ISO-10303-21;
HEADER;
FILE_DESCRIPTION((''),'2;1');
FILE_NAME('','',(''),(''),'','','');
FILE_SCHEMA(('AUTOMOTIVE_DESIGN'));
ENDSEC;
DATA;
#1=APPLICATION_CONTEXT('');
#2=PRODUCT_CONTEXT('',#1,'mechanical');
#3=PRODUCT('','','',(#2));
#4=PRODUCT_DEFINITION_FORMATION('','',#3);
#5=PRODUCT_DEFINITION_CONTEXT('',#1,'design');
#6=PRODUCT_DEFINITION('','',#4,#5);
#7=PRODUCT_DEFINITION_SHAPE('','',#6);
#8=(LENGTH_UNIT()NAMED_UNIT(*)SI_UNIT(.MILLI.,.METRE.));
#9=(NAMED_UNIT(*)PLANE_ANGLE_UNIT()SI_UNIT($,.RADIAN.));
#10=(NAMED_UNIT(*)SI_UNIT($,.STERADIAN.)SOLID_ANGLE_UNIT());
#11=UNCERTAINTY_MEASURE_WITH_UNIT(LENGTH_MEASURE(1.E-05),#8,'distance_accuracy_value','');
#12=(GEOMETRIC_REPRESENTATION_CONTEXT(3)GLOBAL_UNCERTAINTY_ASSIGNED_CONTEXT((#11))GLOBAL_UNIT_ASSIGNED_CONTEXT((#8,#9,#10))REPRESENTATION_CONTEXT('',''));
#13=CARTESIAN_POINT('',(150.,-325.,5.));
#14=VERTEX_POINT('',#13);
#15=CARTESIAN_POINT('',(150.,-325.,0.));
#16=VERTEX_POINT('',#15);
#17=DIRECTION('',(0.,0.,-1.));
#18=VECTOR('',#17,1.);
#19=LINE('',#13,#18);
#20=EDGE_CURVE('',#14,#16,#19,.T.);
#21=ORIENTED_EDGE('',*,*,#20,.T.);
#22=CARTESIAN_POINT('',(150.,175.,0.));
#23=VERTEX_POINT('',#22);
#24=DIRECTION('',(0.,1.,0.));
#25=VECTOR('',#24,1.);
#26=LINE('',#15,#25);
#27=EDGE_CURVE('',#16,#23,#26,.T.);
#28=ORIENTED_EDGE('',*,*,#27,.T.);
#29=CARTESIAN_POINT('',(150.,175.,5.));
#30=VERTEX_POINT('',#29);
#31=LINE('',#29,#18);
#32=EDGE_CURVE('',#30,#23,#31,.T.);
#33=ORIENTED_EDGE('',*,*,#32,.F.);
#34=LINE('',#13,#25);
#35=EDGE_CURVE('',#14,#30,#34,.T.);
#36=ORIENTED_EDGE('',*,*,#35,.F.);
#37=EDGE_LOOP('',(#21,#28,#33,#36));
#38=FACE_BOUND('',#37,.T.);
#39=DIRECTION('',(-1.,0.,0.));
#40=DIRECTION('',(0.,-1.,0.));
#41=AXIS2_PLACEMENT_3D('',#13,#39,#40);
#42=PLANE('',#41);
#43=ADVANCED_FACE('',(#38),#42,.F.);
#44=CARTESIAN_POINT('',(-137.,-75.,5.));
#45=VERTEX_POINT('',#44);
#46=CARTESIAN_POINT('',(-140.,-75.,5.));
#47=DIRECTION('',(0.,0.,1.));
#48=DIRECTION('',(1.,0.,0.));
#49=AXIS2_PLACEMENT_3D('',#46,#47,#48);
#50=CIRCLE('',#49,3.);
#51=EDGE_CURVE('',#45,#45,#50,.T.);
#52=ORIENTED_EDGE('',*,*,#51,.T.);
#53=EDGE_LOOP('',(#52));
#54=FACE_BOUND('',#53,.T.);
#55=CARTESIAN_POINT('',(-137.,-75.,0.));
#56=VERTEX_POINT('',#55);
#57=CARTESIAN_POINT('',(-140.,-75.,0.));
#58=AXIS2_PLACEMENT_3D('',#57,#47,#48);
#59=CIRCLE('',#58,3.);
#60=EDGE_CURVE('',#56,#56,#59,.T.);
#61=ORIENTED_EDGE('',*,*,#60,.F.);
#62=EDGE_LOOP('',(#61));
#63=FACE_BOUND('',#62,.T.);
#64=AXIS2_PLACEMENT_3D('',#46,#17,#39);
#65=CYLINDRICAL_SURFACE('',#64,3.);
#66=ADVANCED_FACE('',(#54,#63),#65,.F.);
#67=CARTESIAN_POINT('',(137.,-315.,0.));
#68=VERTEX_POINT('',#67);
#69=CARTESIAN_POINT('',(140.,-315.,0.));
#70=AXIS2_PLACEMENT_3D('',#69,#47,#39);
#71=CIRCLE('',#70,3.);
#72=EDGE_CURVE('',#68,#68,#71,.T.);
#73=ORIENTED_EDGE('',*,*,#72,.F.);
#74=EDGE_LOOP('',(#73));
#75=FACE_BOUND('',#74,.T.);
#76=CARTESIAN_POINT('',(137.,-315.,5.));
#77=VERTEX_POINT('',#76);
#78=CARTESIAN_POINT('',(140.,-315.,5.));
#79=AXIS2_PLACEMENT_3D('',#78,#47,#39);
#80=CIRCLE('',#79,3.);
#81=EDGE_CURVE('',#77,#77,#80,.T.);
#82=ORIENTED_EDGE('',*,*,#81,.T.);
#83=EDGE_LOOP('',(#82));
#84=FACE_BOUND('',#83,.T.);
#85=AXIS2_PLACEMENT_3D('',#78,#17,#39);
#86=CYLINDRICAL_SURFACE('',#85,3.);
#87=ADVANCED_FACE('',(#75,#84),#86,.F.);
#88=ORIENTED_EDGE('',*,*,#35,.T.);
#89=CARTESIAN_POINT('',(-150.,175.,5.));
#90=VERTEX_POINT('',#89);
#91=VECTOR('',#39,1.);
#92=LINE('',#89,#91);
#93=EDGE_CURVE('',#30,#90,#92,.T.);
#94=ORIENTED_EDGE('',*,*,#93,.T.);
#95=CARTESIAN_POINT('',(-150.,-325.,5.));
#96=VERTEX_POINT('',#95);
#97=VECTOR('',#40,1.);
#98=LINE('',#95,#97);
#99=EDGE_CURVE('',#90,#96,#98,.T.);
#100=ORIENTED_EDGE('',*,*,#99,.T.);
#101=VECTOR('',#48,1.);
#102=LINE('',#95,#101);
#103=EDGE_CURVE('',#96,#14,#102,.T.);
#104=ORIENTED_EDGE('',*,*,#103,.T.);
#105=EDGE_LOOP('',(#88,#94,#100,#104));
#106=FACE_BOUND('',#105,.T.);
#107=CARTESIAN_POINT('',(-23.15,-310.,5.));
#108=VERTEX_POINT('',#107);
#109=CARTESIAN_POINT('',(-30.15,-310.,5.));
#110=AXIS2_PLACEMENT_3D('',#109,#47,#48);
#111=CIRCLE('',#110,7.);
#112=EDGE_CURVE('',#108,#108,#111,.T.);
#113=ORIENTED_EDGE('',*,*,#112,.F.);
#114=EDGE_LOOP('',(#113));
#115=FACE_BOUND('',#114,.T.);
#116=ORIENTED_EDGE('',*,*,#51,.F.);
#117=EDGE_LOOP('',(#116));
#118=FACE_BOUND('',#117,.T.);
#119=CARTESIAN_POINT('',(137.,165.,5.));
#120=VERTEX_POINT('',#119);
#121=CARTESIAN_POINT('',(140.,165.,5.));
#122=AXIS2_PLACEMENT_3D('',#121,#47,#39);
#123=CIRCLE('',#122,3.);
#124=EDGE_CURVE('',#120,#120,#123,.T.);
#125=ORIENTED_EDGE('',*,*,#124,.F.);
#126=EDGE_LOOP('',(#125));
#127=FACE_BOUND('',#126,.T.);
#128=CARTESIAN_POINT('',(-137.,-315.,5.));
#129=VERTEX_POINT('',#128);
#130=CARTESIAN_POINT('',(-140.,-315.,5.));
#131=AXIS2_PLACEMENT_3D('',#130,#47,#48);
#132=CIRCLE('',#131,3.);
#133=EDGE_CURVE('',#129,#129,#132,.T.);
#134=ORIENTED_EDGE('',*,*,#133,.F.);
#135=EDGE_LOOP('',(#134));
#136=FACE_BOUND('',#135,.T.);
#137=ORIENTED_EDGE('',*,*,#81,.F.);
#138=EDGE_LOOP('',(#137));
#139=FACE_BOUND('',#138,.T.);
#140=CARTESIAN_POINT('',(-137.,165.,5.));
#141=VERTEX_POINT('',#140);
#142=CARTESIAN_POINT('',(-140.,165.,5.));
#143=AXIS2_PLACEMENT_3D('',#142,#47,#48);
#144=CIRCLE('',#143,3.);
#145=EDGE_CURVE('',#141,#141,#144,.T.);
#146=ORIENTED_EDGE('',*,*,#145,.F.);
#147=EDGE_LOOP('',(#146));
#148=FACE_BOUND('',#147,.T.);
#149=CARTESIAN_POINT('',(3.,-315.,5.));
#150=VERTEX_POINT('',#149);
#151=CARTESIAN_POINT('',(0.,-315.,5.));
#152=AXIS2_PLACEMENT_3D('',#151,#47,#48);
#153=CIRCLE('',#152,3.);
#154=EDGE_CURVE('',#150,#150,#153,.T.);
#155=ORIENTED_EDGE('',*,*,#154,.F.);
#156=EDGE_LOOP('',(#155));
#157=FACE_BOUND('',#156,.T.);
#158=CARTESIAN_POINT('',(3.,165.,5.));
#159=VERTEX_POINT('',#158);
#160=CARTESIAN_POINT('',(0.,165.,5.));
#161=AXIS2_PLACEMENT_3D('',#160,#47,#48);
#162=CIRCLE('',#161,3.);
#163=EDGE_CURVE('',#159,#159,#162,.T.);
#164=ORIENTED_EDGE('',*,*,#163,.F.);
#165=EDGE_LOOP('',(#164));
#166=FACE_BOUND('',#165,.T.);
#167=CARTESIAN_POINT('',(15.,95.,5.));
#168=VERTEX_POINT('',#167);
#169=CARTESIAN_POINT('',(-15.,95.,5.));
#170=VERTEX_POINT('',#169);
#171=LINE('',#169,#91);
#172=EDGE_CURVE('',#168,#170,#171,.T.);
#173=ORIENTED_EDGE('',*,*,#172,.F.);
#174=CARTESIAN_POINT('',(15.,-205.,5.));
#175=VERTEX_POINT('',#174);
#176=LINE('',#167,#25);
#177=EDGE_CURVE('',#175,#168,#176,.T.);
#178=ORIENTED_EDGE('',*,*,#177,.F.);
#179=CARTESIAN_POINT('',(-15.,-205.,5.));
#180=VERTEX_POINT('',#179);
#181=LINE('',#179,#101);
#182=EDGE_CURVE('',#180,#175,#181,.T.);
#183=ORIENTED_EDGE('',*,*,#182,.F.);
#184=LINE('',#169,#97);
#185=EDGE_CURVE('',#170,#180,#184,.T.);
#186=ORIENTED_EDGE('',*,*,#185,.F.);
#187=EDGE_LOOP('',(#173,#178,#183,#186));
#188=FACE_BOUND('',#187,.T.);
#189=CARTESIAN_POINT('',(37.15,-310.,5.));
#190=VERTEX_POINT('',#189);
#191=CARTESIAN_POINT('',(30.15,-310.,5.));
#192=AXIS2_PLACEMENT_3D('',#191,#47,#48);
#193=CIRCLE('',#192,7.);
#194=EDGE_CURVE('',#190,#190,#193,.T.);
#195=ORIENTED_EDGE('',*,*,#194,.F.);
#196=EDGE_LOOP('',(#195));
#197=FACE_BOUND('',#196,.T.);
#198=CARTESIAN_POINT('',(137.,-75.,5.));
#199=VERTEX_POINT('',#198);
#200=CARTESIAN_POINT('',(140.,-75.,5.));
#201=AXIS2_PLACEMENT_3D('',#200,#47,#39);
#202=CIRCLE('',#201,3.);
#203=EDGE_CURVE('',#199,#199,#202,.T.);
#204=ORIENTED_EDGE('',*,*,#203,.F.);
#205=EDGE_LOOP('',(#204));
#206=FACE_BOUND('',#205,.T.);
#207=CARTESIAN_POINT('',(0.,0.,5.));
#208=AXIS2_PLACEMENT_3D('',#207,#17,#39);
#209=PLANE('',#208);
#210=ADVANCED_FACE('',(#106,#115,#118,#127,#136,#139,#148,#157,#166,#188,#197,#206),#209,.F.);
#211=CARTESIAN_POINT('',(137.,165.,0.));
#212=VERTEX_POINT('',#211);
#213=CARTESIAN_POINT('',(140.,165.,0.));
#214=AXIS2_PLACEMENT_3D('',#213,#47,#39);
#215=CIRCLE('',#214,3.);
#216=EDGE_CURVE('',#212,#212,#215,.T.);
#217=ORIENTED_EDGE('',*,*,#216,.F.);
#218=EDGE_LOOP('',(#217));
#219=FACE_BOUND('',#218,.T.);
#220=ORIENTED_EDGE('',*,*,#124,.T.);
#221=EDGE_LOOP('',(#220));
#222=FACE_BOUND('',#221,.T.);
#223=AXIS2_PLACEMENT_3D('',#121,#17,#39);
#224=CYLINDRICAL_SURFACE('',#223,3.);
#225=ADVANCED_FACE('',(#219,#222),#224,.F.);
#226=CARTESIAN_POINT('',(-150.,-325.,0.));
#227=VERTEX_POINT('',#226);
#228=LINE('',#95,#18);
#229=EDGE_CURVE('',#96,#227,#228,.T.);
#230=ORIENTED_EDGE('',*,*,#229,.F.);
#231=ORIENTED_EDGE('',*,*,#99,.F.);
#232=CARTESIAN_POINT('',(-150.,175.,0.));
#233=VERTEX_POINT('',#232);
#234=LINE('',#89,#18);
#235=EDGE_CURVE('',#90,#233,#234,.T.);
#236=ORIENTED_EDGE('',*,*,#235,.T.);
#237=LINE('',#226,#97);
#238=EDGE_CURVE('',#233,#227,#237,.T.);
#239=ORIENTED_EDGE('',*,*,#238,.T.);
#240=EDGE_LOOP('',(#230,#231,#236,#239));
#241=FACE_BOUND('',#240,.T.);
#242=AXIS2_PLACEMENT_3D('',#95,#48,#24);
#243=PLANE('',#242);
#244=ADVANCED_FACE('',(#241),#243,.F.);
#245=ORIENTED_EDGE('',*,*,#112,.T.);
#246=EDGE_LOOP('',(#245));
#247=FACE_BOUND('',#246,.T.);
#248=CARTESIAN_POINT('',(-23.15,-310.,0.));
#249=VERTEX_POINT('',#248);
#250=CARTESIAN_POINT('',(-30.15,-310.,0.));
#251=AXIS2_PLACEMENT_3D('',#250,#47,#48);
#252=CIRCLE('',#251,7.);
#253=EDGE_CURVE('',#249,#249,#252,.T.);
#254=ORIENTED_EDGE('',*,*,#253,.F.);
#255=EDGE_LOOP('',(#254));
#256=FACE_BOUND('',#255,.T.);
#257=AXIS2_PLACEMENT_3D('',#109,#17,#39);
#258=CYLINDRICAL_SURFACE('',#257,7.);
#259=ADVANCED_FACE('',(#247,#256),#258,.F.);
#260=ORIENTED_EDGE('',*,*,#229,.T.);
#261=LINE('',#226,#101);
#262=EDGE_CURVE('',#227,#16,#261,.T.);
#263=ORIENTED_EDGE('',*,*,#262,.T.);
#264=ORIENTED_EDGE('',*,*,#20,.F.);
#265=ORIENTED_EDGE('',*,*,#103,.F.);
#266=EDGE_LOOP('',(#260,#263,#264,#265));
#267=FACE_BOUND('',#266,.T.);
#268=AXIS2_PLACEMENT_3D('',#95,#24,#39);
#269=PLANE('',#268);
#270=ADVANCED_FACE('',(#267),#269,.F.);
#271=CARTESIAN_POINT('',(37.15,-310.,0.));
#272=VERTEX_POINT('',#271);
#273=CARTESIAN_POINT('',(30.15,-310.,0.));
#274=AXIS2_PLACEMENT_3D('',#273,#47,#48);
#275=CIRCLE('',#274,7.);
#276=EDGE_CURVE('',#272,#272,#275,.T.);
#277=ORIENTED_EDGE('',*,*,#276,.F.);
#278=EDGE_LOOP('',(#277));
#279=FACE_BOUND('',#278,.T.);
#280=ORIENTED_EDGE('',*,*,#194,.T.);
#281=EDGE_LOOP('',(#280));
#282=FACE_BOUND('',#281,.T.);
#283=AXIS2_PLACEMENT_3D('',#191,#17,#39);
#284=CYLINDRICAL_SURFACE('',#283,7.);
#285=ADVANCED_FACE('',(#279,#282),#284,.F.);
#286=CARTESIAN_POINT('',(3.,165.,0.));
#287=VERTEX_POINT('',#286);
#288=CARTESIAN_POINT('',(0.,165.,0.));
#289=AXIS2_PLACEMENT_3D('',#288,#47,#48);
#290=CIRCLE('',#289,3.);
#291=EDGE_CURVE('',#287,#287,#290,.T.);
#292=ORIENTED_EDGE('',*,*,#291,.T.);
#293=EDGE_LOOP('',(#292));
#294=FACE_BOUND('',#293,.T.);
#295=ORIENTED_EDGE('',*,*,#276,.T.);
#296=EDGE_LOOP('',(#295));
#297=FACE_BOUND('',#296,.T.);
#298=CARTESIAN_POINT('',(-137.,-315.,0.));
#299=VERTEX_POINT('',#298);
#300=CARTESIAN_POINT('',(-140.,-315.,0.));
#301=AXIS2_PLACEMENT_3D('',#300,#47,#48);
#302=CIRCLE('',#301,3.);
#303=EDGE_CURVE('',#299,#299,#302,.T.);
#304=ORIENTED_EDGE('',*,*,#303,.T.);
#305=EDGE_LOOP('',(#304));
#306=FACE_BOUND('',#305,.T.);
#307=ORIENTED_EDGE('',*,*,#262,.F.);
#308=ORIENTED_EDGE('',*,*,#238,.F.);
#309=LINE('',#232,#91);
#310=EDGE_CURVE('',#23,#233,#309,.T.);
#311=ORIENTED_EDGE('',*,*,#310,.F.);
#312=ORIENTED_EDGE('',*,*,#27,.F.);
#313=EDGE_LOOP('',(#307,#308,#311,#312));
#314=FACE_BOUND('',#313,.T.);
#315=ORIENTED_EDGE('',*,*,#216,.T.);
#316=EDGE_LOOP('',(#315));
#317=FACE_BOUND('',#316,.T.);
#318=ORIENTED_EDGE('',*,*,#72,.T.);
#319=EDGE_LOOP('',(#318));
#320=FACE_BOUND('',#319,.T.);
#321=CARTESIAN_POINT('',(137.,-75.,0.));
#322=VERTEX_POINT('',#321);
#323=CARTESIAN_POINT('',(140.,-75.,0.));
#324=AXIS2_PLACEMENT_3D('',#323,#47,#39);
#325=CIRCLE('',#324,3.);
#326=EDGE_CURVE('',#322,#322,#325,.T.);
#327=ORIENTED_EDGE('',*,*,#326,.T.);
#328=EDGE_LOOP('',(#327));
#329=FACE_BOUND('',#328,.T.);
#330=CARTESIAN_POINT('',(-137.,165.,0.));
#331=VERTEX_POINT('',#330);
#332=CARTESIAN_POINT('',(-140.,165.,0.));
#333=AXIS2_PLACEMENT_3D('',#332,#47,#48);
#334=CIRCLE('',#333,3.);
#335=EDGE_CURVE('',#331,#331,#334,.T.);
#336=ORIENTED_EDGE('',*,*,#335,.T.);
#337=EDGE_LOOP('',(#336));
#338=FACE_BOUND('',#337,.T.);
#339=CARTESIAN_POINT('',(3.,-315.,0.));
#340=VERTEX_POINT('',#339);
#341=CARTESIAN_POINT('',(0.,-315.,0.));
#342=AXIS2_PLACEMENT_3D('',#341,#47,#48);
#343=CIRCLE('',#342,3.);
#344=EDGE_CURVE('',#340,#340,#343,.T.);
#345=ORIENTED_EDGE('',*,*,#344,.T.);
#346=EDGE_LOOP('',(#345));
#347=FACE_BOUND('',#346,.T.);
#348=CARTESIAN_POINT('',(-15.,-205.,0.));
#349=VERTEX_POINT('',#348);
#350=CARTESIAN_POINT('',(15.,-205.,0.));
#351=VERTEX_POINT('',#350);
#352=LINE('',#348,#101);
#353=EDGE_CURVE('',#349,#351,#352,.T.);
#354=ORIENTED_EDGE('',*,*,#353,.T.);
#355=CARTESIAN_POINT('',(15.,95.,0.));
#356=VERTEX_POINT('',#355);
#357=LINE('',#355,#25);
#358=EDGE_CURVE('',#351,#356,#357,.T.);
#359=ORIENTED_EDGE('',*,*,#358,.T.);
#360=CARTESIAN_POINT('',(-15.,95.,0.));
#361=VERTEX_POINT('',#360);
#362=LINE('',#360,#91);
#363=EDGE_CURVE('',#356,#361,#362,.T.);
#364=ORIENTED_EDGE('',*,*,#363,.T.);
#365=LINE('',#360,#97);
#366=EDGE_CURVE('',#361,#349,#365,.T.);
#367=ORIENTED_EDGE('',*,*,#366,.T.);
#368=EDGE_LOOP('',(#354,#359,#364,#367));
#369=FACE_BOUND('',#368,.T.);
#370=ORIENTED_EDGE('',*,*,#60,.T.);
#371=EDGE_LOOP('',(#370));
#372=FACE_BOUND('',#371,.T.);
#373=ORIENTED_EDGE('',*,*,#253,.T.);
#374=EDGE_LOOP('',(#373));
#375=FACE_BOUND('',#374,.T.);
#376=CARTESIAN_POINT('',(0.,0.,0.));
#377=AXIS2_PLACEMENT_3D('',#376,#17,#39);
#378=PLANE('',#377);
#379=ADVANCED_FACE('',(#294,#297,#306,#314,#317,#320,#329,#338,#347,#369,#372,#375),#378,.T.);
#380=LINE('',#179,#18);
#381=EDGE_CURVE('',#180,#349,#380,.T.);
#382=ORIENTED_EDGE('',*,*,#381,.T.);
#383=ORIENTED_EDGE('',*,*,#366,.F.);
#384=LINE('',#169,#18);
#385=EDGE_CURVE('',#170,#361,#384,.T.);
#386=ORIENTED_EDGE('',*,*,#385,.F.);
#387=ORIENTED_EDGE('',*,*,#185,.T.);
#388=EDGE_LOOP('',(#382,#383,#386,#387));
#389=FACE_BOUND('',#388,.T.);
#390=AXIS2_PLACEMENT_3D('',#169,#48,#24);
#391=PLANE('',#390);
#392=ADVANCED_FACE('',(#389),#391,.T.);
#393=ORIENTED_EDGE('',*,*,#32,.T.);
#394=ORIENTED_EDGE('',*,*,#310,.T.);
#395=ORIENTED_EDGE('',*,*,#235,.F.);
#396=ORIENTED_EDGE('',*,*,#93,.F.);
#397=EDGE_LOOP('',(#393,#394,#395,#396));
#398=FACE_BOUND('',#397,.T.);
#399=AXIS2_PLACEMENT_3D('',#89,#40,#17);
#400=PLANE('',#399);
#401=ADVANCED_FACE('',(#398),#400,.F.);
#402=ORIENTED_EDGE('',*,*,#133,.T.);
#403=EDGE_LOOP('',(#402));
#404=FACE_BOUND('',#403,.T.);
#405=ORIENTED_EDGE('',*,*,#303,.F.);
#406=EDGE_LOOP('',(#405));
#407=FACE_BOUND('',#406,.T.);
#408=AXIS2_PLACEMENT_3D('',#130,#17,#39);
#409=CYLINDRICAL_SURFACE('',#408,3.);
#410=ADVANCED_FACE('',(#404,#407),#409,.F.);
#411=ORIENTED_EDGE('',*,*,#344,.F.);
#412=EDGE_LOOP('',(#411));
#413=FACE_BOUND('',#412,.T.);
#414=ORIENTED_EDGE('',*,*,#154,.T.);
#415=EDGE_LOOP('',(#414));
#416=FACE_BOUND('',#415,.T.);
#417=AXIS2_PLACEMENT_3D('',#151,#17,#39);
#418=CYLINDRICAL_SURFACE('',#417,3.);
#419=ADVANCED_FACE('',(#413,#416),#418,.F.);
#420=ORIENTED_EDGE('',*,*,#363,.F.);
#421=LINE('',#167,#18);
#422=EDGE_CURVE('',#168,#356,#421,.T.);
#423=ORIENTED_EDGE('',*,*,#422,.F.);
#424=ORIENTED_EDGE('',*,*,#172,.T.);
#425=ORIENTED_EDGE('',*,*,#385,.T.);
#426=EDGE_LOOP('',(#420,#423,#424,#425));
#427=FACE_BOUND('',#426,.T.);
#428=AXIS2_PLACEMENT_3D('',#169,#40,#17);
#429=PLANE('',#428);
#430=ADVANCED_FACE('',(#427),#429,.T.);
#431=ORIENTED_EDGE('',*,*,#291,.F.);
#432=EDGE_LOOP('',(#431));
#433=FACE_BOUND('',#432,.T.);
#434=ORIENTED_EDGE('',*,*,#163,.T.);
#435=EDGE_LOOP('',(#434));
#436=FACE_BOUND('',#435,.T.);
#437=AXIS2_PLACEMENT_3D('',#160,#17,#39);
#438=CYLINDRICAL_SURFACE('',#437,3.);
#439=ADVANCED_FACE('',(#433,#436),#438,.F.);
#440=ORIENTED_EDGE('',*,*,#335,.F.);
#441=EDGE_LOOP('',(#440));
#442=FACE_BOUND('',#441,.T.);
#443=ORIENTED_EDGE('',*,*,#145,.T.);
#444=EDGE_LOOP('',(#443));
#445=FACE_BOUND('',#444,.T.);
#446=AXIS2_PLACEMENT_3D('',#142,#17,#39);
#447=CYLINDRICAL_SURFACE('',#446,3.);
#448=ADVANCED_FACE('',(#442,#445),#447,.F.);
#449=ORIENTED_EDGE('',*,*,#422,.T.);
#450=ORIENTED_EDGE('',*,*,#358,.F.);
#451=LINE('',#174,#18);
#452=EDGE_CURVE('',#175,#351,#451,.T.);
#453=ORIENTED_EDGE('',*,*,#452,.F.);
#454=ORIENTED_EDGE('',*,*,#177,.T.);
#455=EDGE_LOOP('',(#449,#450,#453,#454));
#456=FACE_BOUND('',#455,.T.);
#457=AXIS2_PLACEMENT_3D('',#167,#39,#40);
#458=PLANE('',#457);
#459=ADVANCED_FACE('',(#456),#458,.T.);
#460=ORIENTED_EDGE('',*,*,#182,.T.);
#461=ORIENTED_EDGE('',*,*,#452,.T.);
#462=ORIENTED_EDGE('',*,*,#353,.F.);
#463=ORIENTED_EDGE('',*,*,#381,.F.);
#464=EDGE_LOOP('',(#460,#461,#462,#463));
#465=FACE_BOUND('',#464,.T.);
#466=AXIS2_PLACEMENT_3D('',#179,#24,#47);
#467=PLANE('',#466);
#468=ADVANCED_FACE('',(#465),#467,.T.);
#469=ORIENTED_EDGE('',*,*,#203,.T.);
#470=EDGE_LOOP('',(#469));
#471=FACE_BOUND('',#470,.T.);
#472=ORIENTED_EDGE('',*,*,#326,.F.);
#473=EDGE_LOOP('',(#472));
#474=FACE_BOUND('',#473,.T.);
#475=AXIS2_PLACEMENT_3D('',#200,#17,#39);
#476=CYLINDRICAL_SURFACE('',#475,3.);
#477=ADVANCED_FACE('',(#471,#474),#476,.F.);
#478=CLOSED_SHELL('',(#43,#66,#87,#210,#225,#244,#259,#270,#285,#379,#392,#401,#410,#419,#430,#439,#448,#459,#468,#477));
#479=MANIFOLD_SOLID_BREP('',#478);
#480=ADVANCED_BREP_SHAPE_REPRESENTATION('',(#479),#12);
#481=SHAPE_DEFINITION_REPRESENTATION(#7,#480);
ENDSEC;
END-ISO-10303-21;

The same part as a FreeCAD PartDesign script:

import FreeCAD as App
import Part
import Sketcher

V = App.Vector


def add_polygon(sketch, points):
    """Adds a closed chain of lines whose ends are joined by coincident constraints."""
    first, n = sketch.GeometryCount, len(points)
    for a, b in zip(points, points[1:] + points[:1]):
        sketch.addGeometry(Part.LineSegment(App.Vector(*a, 0), App.Vector(*b, 0)), False)
    for i in range(n):
        sketch.addConstraint(Sketcher.Constraint("Coincident", first + i, 2, first + (i + 1) % n, 1))

doc = App.newDocument("Part")
body = doc.addObject("PartDesign::Body", "Body")

# Sketch on XY plane
sketch1 = doc.addObject("Sketcher::SketchObject", "Sketch")
body.addObject(sketch1)
sketch1.AttachmentSupport = (doc.XY_Plane, [""])
sketch1.MapMode = "FlatFace"
add_polygon(sketch1, [(-150, 175), (-150, -325), (150, -325), (150, 175)])  # lines 0-3
sketch1.addGeometry(Part.Circle(V(-140, -315, 0), V(0, 0, 1), 3), False)  # 4
sketch1.addGeometry(Part.Circle(V(-30.1, -310, 0), V(0, 0, 1), 7), False)  # 5
sketch1.addGeometry(Part.Circle(V(0, -315, 0), V(0, 0, 1), 3), False)  # 6
sketch1.addGeometry(Part.Circle(V(30.1, -310, 0), V(0, 0, 1), 7), False)  # 7
sketch1.addGeometry(Part.Circle(V(140, -315, 0), V(0, 0, 1), 3), False)  # 8
sketch1.addGeometry(Part.Circle(V(-140, -75, 0), V(0, 0, 1), 3), False)  # 9
sketch1.addGeometry(Part.Circle(V(-140, 165, 0), V(0, 0, 1), 3), False)  # 10
add_polygon(sketch1, [(15, -205), (-15, -205), (-15, 95), (15, 95)])  # lines 11-14
sketch1.addGeometry(Part.Circle(V(140, -75, 0), V(0, 0, 1), 3), False)  # 15
sketch1.addGeometry(Part.Circle(V(0, 165, 0), V(0, 0, 1), 3), False)  # 16
sketch1.addGeometry(Part.Circle(V(140, 165, 0), V(0, 0, 1), 3), False)  # 17
sketch1.addConstraint([
    Sketcher.Constraint("Vertical", 0),
    Sketcher.Constraint("Horizontal", 1),
    Sketcher.Constraint("Vertical", 2),
    Sketcher.Constraint("Horizontal", 3),
    Sketcher.Constraint("Horizontal", 11),
    Sketcher.Constraint("Vertical", 12),
    Sketcher.Constraint("Horizontal", 13),
    Sketcher.Constraint("Vertical", 14),
    Sketcher.Constraint("Equal", 4, 6),
    Sketcher.Constraint("Equal", 5, 7),
    Sketcher.Constraint("Equal", 6, 8),
    Sketcher.Constraint("Equal", 8, 9),
    Sketcher.Constraint("Equal", 9, 10),
    Sketcher.Constraint("Equal", 10, 15),
    Sketcher.Constraint("Equal", 15, 16),
    Sketcher.Constraint("Equal", 16, 17),
    Sketcher.Constraint("Symmetric", 5, 3, 7, 3, -2),
    Sketcher.Constraint("Symmetric", 4, 3, 8, 3, -2),
    Sketcher.Constraint("Symmetric", 9, 3, 15, 3, -2),
    Sketcher.Constraint("Symmetric", 10, 3, 17, 3, -2),
    Sketcher.Constraint("PointOnObject", 6, 3, -2),
    Sketcher.Constraint("PointOnObject", 16, 3, -2),
    Sketcher.Constraint("Horizontal", 4, 3, 6, 3),
    Sketcher.Constraint("Horizontal", 10, 3, 16, 3),
    Sketcher.Constraint("Vertical", 4, 3, 9, 3),
    Sketcher.Constraint("Vertical", 9, 3, 10, 3),
    Sketcher.Constraint("Equal", 3, 12),
    Sketcher.Constraint("Diameter", 4, 6.0),
    Sketcher.Constraint("Diameter", 5, 14.0),
    Sketcher.Constraint("DistanceX", 1, 1, 1, 2, 300.0),
    Sketcher.Constraint("DistanceX", 11, 2, 11, 1, 30.0),
    Sketcher.Constraint("DistanceY", 0, 2, 0, 1, 500.0),
    Sketcher.Constraint("DistanceX", 4, 3, -1, 1, 140.0),
    Sketcher.Constraint("DistanceY", 4, 3, -1, 1, 315.0),
    Sketcher.Constraint("DistanceY", 5, 3, -1, 1, 310.0),
    Sketcher.Constraint("DistanceY", 9, 3, -1, 1, 75.0),
    Sketcher.Constraint("DistanceY", -1, 1, 10, 3, 165.0),
    Sketcher.Constraint("DistanceX", 0, 2, -1, 1, 150.0),
    Sketcher.Constraint("DistanceY", 0, 2, -1, 1, 325.0),
    Sketcher.Constraint("DistanceX", 11, 2, -1, 1, 15.0),
    Sketcher.Constraint("DistanceY", 11, 2, -1, 1, 205.0),
    Sketcher.Constraint("DistanceX", 5, 3, 7, 3, 60.3),
])
pad1 = doc.addObject("PartDesign::Pad", "Pad")
body.addObject(pad1)
pad1.Profile = sketch1
pad1.Length = 5

doc.recompute()
